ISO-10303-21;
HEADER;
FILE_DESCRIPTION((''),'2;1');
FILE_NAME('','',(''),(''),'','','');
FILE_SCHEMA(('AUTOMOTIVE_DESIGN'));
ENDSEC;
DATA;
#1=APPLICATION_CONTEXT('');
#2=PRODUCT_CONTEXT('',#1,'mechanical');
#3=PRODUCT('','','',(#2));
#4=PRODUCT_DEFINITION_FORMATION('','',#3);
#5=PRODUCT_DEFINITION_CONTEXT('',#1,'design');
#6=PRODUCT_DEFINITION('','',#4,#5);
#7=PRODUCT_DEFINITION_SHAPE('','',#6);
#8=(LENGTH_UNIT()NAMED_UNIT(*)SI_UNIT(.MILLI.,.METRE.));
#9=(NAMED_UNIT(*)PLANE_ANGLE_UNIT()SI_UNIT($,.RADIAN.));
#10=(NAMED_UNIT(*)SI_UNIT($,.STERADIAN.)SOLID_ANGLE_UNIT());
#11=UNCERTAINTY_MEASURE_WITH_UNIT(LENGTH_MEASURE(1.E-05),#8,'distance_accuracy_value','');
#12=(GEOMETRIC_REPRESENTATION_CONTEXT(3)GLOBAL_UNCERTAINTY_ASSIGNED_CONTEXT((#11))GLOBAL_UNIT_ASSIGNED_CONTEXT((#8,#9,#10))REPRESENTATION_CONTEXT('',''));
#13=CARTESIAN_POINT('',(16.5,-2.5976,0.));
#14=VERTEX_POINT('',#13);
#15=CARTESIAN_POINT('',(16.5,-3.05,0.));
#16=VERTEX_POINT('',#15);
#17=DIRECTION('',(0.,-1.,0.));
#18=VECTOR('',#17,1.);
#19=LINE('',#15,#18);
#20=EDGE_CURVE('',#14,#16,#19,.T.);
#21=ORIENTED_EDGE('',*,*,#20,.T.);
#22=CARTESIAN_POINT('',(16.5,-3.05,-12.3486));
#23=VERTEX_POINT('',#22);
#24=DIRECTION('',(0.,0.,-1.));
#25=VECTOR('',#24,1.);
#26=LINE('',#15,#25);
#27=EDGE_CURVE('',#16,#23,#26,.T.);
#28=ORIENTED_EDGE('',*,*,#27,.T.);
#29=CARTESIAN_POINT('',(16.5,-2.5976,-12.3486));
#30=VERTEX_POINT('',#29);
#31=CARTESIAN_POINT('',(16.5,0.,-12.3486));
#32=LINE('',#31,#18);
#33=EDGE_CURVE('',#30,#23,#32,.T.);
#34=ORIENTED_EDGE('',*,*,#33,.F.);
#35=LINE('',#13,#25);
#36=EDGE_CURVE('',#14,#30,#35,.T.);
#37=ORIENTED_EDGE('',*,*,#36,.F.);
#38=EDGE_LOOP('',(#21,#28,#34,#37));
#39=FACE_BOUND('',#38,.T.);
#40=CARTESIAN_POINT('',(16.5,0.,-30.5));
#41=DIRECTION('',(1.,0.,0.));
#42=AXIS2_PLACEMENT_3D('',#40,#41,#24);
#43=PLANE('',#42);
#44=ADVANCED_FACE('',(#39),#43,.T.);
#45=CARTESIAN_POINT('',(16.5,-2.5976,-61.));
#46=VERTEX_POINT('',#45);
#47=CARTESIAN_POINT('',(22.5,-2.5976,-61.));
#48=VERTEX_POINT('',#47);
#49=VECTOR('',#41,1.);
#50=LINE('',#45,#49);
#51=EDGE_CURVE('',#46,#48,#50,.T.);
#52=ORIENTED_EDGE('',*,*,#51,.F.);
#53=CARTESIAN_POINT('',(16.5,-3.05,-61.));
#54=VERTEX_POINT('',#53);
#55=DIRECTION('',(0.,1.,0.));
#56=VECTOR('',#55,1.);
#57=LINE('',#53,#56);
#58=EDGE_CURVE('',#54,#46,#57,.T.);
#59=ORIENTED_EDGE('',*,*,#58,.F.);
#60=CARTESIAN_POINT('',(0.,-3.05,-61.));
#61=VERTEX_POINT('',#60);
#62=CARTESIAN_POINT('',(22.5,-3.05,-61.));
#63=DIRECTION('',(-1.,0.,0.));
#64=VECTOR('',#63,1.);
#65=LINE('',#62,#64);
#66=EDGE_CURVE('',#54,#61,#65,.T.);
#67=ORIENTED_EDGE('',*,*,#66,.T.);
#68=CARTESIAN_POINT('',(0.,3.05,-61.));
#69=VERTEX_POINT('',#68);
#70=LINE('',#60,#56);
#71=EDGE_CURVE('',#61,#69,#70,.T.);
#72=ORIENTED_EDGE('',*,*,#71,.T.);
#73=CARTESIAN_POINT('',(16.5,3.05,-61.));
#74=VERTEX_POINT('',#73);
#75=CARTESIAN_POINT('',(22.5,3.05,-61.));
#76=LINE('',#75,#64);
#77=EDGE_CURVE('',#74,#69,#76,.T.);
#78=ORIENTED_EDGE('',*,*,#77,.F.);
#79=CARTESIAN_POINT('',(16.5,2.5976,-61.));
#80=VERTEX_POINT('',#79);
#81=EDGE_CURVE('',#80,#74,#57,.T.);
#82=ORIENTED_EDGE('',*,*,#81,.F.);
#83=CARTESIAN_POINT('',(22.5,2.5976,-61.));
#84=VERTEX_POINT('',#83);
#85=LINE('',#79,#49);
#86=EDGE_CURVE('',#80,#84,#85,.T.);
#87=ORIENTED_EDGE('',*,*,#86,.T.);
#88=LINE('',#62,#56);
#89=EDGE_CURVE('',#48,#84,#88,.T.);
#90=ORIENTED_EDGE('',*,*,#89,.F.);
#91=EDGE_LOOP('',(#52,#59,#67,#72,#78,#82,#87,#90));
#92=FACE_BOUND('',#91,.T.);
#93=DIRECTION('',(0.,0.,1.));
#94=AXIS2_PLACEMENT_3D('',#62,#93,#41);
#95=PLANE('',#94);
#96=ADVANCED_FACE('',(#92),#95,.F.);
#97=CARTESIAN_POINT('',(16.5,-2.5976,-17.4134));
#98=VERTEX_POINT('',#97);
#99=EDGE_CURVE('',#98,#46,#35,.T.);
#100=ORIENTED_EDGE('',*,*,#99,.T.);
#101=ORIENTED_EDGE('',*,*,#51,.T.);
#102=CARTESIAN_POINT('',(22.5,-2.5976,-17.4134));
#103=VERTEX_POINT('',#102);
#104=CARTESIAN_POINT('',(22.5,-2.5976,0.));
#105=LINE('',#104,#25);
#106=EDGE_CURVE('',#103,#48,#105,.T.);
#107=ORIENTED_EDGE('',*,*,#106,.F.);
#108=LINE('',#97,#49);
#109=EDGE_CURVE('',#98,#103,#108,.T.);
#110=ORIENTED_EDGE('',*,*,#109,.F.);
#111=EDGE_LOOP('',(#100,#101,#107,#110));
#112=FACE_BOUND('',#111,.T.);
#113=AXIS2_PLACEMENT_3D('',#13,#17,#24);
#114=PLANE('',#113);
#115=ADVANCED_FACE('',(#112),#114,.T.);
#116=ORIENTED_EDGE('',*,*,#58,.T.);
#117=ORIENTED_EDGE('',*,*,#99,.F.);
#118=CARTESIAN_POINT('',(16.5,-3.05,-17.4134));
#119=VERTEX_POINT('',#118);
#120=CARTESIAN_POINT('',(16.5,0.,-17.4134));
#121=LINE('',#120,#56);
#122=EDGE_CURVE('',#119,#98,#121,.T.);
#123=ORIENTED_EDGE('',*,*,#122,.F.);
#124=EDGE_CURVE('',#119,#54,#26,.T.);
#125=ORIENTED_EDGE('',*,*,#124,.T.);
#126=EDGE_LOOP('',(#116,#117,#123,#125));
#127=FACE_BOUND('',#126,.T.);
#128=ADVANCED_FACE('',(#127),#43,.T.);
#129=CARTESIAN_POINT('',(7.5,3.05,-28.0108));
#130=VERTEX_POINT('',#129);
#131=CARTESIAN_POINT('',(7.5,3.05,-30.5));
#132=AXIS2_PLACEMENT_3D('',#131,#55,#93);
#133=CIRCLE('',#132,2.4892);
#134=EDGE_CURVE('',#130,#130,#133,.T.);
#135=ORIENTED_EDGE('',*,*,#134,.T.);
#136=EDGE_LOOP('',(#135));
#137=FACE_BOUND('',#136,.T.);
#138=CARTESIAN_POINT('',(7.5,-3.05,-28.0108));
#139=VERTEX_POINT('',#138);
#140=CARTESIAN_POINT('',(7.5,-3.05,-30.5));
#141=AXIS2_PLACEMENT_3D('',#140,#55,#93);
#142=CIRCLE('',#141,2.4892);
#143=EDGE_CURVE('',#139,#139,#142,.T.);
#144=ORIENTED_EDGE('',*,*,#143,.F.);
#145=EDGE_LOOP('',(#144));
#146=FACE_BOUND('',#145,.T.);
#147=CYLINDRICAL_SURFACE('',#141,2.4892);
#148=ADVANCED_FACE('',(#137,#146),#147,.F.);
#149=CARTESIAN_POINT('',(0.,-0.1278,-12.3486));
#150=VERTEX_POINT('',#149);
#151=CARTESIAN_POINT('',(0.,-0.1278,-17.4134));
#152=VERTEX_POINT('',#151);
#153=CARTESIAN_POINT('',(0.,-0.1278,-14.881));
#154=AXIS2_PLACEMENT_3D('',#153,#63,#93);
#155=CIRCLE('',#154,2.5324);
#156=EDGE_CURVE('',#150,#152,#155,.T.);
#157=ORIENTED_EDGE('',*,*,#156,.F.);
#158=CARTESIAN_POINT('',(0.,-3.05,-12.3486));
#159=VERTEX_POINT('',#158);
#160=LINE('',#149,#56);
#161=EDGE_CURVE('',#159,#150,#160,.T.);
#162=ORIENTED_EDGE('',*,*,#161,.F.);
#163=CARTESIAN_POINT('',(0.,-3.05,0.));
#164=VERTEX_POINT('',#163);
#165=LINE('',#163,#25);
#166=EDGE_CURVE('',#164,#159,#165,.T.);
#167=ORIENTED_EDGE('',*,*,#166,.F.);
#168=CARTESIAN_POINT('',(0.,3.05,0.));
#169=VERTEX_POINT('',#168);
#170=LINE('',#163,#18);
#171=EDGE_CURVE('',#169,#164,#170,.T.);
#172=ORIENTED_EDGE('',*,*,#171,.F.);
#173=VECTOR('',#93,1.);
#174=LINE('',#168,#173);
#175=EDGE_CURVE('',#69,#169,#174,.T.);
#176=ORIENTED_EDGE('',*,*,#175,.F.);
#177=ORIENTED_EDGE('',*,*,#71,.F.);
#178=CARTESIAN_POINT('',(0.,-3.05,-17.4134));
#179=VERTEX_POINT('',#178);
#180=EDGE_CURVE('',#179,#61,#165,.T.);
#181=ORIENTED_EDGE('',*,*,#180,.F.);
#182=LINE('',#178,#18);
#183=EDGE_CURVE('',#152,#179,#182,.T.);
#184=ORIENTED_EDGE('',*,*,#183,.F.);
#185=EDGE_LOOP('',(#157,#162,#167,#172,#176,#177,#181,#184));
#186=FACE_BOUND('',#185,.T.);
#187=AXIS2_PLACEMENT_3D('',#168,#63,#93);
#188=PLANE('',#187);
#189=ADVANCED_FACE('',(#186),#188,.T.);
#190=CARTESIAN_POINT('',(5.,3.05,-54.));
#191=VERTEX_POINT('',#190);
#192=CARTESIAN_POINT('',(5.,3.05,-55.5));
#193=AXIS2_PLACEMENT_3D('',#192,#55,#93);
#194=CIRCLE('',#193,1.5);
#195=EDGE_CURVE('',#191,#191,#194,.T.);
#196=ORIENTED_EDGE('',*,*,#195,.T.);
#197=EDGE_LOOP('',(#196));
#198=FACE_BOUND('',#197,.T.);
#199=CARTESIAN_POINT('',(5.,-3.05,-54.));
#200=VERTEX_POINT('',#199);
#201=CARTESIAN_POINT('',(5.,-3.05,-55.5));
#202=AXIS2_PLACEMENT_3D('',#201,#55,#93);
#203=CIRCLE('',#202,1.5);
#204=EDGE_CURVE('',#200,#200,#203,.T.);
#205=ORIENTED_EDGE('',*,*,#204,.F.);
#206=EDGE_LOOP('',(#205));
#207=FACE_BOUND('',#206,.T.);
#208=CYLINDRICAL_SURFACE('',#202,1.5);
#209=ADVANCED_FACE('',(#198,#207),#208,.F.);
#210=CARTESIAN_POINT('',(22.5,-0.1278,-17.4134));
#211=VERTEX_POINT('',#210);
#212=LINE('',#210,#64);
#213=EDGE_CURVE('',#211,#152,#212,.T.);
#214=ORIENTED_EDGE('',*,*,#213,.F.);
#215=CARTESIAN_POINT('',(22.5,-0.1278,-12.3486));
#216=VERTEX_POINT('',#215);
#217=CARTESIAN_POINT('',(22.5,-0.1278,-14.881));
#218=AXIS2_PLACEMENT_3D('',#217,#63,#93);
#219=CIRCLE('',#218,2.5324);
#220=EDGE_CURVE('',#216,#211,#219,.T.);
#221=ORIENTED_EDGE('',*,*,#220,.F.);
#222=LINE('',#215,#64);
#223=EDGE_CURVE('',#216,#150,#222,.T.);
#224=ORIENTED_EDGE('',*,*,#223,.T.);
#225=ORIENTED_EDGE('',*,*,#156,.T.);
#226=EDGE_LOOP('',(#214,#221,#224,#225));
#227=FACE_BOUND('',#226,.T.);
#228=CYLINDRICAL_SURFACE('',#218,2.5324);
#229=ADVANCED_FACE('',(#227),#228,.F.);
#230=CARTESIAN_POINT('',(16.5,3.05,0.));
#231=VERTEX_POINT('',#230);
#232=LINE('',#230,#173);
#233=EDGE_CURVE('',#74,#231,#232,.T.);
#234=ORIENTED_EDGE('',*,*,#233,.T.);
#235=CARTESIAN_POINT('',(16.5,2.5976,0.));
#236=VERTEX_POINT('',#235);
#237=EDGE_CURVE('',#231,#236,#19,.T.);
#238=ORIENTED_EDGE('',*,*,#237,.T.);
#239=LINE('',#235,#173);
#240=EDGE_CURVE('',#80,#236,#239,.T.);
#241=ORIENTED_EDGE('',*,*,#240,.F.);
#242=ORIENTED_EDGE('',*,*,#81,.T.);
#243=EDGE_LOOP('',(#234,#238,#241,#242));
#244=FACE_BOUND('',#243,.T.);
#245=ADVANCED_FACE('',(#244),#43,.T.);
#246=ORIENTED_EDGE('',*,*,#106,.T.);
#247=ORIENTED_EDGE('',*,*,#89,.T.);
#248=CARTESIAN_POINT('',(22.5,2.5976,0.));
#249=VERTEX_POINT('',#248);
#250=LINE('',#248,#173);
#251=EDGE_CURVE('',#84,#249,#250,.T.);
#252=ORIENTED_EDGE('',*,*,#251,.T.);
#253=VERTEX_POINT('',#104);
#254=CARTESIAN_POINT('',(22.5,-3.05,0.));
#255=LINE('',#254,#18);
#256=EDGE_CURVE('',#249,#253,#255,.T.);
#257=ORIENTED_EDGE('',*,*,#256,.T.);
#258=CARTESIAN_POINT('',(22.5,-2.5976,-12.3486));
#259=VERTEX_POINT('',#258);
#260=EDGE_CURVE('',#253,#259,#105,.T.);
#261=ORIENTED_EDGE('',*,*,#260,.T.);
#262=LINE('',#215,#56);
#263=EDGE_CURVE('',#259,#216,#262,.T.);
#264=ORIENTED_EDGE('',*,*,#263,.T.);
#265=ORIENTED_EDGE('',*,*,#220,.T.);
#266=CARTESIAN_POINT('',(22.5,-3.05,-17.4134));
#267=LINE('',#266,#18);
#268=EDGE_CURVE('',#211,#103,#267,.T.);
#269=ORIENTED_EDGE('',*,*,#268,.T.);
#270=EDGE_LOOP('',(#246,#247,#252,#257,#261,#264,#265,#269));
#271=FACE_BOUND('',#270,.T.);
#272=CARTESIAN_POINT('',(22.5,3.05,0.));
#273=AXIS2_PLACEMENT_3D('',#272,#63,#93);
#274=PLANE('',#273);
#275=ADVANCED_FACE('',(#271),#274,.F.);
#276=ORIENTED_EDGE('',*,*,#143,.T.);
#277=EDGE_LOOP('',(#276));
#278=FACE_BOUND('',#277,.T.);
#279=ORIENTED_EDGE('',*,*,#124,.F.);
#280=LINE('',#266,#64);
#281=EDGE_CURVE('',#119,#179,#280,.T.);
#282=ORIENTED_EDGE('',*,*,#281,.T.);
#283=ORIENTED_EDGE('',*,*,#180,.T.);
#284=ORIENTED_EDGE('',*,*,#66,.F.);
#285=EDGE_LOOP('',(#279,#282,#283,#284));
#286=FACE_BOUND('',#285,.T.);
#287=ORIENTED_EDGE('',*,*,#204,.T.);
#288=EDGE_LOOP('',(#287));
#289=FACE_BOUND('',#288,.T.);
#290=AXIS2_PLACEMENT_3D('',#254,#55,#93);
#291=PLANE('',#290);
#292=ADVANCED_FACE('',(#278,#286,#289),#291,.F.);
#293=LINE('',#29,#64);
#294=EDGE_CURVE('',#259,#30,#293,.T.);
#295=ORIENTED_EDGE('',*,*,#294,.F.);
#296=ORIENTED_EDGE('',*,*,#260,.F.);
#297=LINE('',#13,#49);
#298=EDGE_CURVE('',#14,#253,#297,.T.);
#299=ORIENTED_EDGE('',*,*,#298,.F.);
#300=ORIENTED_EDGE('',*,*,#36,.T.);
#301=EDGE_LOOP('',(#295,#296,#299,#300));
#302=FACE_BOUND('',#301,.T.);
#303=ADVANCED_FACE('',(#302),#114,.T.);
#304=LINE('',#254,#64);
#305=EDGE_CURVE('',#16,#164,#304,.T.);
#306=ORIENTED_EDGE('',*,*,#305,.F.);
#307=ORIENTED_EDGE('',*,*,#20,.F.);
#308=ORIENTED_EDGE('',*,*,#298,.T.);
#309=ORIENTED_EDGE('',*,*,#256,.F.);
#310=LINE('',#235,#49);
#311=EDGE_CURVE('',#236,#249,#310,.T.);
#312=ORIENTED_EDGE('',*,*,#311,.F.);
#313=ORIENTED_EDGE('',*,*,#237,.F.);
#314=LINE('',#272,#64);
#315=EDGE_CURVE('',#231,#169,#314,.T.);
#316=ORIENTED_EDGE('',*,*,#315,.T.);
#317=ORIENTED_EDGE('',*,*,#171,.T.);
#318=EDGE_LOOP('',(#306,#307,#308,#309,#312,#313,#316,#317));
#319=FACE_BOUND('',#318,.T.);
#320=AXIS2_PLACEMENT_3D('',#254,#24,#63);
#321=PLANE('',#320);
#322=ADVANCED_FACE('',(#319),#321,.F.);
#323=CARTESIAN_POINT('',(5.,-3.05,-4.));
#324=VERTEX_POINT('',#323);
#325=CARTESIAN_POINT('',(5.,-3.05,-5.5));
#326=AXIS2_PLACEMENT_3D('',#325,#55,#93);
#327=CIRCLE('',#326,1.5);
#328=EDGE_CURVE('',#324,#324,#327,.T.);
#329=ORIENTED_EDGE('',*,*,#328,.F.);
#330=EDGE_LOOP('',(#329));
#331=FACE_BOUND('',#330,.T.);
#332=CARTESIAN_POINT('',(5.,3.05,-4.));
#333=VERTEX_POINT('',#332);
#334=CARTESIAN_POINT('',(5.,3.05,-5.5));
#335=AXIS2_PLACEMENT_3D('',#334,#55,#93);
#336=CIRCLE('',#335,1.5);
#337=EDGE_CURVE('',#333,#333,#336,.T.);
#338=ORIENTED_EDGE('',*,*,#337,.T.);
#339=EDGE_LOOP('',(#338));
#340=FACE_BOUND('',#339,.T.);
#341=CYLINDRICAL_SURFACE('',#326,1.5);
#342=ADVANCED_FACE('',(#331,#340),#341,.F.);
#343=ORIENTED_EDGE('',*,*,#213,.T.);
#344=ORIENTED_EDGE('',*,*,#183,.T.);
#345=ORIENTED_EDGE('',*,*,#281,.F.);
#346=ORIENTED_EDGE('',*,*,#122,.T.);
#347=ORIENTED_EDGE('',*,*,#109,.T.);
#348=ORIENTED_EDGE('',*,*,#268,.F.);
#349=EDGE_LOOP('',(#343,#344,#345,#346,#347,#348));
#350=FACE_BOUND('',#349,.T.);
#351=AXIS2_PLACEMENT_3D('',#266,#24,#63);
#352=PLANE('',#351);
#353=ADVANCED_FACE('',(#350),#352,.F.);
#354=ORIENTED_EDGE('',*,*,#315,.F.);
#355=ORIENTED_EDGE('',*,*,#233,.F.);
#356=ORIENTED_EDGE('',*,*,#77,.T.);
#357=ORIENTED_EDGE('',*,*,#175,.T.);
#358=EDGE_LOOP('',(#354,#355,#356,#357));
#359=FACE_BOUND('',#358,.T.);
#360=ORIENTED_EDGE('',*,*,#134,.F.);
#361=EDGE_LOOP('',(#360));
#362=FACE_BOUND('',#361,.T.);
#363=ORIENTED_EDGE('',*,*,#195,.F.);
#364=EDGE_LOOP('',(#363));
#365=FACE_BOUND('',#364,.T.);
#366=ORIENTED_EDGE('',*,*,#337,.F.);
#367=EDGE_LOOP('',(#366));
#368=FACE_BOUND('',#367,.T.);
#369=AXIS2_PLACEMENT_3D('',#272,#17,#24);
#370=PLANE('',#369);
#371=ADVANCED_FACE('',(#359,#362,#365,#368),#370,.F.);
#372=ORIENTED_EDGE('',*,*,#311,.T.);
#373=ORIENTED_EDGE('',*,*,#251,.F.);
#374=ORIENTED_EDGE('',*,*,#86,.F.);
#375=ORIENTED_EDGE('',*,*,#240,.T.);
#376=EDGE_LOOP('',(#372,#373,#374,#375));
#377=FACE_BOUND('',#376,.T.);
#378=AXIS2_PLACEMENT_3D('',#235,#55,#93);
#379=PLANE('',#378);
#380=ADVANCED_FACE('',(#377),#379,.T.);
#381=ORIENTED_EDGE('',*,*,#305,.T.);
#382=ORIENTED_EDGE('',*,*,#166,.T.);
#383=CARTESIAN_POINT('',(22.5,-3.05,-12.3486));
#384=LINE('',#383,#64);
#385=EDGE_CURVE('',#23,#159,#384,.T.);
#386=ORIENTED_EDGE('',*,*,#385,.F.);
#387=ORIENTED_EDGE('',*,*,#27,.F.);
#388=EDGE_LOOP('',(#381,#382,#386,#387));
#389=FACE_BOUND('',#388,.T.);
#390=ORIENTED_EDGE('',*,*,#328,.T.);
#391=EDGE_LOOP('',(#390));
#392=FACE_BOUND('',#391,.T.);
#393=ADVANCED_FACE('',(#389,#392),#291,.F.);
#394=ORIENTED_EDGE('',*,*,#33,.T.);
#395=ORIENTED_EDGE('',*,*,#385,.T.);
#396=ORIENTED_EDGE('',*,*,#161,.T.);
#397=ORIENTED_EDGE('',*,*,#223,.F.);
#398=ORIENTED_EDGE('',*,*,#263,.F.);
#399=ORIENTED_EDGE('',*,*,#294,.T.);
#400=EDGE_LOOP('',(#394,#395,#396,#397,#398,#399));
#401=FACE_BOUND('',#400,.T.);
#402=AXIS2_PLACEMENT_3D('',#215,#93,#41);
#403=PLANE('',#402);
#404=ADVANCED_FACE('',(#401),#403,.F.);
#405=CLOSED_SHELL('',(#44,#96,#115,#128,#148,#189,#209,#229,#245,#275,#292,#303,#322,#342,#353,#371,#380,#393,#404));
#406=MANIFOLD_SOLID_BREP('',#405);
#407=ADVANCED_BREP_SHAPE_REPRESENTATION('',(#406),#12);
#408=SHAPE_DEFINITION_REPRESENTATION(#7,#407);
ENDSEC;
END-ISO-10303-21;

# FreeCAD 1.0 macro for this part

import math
import FreeCAD as App
import Part
import Sketcher


def add_polygon(sketch, points):
    """Adds a closed chain of lines whose ends are joined by coincident constraints."""
    first, n = sketch.GeometryCount, len(points)
    for a, b in zip(points, points[1:] + points[:1]):
        sketch.addGeometry(Part.LineSegment(App.Vector(*a, 0), App.Vector(*b, 0)), False)
    for i in range(n):
        sketch.addConstraint(Sketcher.Constraint("Coincident", first + i, 2, first + (i + 1) % n, 1))

doc = App.newDocument("Part")
body = doc.addObject("PartDesign::Body", "Body")

# Sketch on YZ plane
sketch1 = body.newObject("Sketcher::SketchObject", "Sketch")
sketch1.AttachmentSupport = (doc.getObject("YZ_Plane"), [""])
sketch1.MapMode = "FlatFace"
add_polygon(sketch1, [(3, 0), (-3, 0), (-3, -61), (3, -61)])  # lines 0-3
sketch1.addConstraint(Sketcher.Constraint("Horizontal", 0))
sketch1.addConstraint(Sketcher.Constraint("Vertical", 1))
sketch1.addConstraint(Sketcher.Constraint("Horizontal", 2))
sketch1.addConstraint(Sketcher.Constraint("Vertical", 3))
sketch1.addConstraint(Sketcher.Constraint("Symmetric", 0, 2, 3, 2, -1, 1))
sketch1.addConstraint(Sketcher.Constraint("DistanceY", 1, 2, 1, 1, 61.0))
sketch1.addConstraint(Sketcher.Constraint("DistanceX", 0, 2, 0, 1, 6.1))
pad1 = body.newObject("PartDesign::Pad", "Pad")
pad1.Profile = sketch1
pad1.Length = 22.5

# Sketch on YZ plane
sketch2 = body.newObject("Sketcher::SketchObject", "Sketch001")
sketch2.AttachmentSupport = (doc.getObject("YZ_Plane"), [""])
sketch2.MapMode = "FlatFace"
sketch2.AttachmentOffset = App.Placement(App.Vector(0, 0, 22.5), App.Rotation())
add_polygon(sketch2, [(11, 8), (-11, 8), (-11, -69), (11, -69)])  # lines 0-3
add_polygon(sketch2, [(-3, -61), (-3, 0), (3, 0), (3, -61)])  # lines 4-7
sketch2.addConstraint(Sketcher.Constraint("Horizontal", 0))
sketch2.addConstraint(Sketcher.Constraint("Vertical", 1))
sketch2.addConstraint(Sketcher.Constraint("Horizontal", 2))
sketch2.addConstraint(Sketcher.Constraint("Vertical", 3))
sketch2.addConstraint(Sketcher.Constraint("Vertical", 4))
sketch2.addConstraint(Sketcher.Constraint("Horizontal", 5))
sketch2.addConstraint(Sketcher.Constraint("Vertical", 6))
sketch2.addConstraint(Sketcher.Constraint("Horizontal", 7))
sketch2.addConstraint(Sketcher.Constraint("Symmetric", 4, 2, 5, 2, -1, 1))
sketch2.addConstraint(Sketcher.Constraint("DistanceY", 4, 1, 4, 2, 61.0))
sketch2.addConstraint(Sketcher.Constraint("DistanceX", 0, 2, 0, 1, 21.16))
sketch2.addConstraint(Sketcher.Constraint("DistanceY", 1, 2, 1, 1, 76.06))
sketch2.addConstraint(Sketcher.Constraint("DistanceX", 0, 2, -1, 1, 10.58))
sketch2.addConstraint(Sketcher.Constraint("DistanceY", -1, 1, 0, 2, 7.53))
sketch2.addConstraint(Sketcher.Constraint("DistanceX", 5, 1, 5, 2, 5.1952))
pocket1 = body.newObject("PartDesign::Pocket", "Pocket")
pocket1.Profile = sketch2
pocket1.Length = 6

# Sketch on YZ plane
sketch3 = body.newObject("Sketcher::SketchObject", "Sketch002")
sketch3.AttachmentSupport = (doc.getObject("YZ_Plane"), [""])
sketch3.MapMode = "FlatFace"
sketch3.addGeometry(Part.LineSegment(App.Vector(-3, -12.3, 0), App.Vector(-0.1, -12.3, 0)), False)
sketch3.addGeometry(Part.ArcOfCircle(Part.Circle(App.Vector(-0.1, -14.9, 0), App.Vector(0, 0, 1), 2.5), math.radians(-90), math.radians(90)), False)
sketch3.addGeometry(Part.LineSegment(App.Vector(-0.1, -17.4, 0), App.Vector(-3, -17.4, 0)), False)
sketch3.addGeometry(Part.LineSegment(App.Vector(-3, -17.4, 0), App.Vector(-3, -12.3, 0)), False)
sketch3.addConstraint(Sketcher.Constraint("Tangent", 0, 2, 1, 2))
sketch3.addConstraint(Sketcher.Constraint("Tangent", 1, 1, 2, 1))
sketch3.addConstraint(Sketcher.Constraint("Coincident", 2, 2, 3, 1))
sketch3.addConstraint(Sketcher.Constraint("Coincident", 3, 2, 0, 1))
sketch3.addConstraint(Sketcher.Constraint("Horizontal", 0))
sketch3.addConstraint(Sketcher.Constraint("Horizontal", 2))
sketch3.addConstraint(Sketcher.Constraint("Vertical", 3))
sketch3.addConstraint(Sketcher.Constraint("Radius", 1, 2.5324))
sketch3.addConstraint(Sketcher.Constraint("DistanceX", 2, 2, -1, 1, 3.05))
sketch3.addConstraint(Sketcher.Constraint("DistanceX", 0, 1, 0, 2, 2.9222))
sketch3.addConstraint(Sketcher.Constraint("DistanceY", 1, 3, -1, 1, 14.881))
pocket2 = body.newObject("PartDesign::Pocket", "Pocket001")
pocket2.Profile = sketch3
pocket2.Type = "ThroughAll"
pocket2.Reversed = True

# Sketch on XZ plane
sketch4 = body.newObject("Sketcher::SketchObject", "Sketch003")
sketch4.AttachmentSupport = (doc.getObject("XZ_Plane"), [""])
sketch4.MapMode = "FlatFace"
sketch4.AttachmentOffset = App.Placement(App.Vector(0, 0, -3.05), App.Rotation())
sketch4.addGeometry(Part.Circle(App.Vector(7.5, -30.5, 0), App.Vector(0, 0, 1), 2.5), False)
sketch4.addConstraint(Sketcher.Constraint("Diameter", 0, 4.9784))
sketch4.addConstraint(Sketcher.Constraint("DistanceX", -1, 1, 0, 3, 7.5))
sketch4.addConstraint(Sketcher.Constraint("DistanceY", 0, 3, -1, 1, 30.5))
pocket3 = body.newObject("PartDesign::Pocket", "Pocket002")
pocket3.Profile = sketch4
pocket3.Type = "ThroughAll"
pocket3.Reversed = True

# Sketch on XZ plane
sketch5 = body.newObject("Sketcher::SketchObject", "Sketch004")
sketch5.AttachmentSupport = (doc.getObject("XZ_Plane"), [""])
sketch5.MapMode = "FlatFace"
sketch5.AttachmentOffset = App.Placement(App.Vector(0, 0, -3.05), App.Rotation())
sketch5.addGeometry(Part.Circle(App.Vector(5, -55.5, 0), App.Vector(0, 0, 1), 1.5), False)
sketch5.addGeometry(Part.Circle(App.Vector(5, -5.5, 0), App.Vector(0, 0, 1), 1.5), False)
sketch5.addConstraint(Sketcher.Constraint("Equal", 0, 1))
sketch5.addConstraint(Sketcher.Constraint("Vertical", 0, 3, 1, 3))
sketch5.addConstraint(Sketcher.Constraint("Diameter", 0, 3.0))
sketch5.addConstraint(Sketcher.Constraint("DistanceX", -1, 1, 0, 3, 5.0))
sketch5.addConstraint(Sketcher.Constraint("DistanceY", 0, 3, 1, 3, 50.0))
sketch5.addConstraint(Sketcher.Constraint("DistanceY", 0, 3, -1, 1, 55.5))
pocket4 = body.newObject("PartDesign::Pocket", "Pocket003")
pocket4.Profile = sketch5
pocket4.Type = "ThroughAll"
pocket4.Reversed = True

doc.recompute()
